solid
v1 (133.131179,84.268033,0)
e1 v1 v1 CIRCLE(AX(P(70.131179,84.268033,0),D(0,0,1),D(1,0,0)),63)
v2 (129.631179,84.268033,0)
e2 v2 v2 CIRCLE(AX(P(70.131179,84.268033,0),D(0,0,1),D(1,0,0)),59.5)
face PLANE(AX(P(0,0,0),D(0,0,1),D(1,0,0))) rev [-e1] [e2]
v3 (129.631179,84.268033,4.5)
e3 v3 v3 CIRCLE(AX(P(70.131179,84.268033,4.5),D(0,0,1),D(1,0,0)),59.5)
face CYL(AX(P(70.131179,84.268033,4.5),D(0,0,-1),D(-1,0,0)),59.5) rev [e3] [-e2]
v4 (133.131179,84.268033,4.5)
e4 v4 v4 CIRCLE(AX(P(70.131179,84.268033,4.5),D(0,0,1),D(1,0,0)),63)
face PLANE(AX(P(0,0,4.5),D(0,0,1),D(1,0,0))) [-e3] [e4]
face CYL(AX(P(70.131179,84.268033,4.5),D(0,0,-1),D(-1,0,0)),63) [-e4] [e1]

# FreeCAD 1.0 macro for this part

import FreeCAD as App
import Part
import Sketcher
from FreeCAD import Vector
Q = App.Units.Quantity

doc = App.newDocument("Part")
body = doc.addObject("PartDesign::Body", "Body")

sketch1 = body.newObject("Sketcher::SketchObject", "Sketch")
sketch1.AttachmentSupport = (doc.getObject("XY_Plane"), [""])
sketch1.MapMode = "FlatFace"
sketch1.addGeometry([
    Part.Circle(Vector(70.131179, 84.268033, 0), Vector(0, 0, 1), 63),
    Part.Circle(Vector(70.131179, 84.268033, 0), Vector(0, 0, 1), 59.5),
], False)
sketch1.addConstraint([
    Sketcher.Constraint("Coincident", 1, 3, 0, 3),
    Sketcher.Constraint("Diameter", 0, Q("126 mm")),
    Sketcher.Constraint("Diameter", 1, Q("119 mm")),
    Sketcher.Constraint("DistanceX", -1, 1, 0, 3, Q("70.131179 mm")),
    Sketcher.Constraint("DistanceY", -1, 1, 0, 3, Q("84.268033 mm")),
])
pad1 = body.newObject("PartDesign::Pad", "Pad")
pad1.Profile = sketch1
pad1.Length = 4.5

doc.recompute()
